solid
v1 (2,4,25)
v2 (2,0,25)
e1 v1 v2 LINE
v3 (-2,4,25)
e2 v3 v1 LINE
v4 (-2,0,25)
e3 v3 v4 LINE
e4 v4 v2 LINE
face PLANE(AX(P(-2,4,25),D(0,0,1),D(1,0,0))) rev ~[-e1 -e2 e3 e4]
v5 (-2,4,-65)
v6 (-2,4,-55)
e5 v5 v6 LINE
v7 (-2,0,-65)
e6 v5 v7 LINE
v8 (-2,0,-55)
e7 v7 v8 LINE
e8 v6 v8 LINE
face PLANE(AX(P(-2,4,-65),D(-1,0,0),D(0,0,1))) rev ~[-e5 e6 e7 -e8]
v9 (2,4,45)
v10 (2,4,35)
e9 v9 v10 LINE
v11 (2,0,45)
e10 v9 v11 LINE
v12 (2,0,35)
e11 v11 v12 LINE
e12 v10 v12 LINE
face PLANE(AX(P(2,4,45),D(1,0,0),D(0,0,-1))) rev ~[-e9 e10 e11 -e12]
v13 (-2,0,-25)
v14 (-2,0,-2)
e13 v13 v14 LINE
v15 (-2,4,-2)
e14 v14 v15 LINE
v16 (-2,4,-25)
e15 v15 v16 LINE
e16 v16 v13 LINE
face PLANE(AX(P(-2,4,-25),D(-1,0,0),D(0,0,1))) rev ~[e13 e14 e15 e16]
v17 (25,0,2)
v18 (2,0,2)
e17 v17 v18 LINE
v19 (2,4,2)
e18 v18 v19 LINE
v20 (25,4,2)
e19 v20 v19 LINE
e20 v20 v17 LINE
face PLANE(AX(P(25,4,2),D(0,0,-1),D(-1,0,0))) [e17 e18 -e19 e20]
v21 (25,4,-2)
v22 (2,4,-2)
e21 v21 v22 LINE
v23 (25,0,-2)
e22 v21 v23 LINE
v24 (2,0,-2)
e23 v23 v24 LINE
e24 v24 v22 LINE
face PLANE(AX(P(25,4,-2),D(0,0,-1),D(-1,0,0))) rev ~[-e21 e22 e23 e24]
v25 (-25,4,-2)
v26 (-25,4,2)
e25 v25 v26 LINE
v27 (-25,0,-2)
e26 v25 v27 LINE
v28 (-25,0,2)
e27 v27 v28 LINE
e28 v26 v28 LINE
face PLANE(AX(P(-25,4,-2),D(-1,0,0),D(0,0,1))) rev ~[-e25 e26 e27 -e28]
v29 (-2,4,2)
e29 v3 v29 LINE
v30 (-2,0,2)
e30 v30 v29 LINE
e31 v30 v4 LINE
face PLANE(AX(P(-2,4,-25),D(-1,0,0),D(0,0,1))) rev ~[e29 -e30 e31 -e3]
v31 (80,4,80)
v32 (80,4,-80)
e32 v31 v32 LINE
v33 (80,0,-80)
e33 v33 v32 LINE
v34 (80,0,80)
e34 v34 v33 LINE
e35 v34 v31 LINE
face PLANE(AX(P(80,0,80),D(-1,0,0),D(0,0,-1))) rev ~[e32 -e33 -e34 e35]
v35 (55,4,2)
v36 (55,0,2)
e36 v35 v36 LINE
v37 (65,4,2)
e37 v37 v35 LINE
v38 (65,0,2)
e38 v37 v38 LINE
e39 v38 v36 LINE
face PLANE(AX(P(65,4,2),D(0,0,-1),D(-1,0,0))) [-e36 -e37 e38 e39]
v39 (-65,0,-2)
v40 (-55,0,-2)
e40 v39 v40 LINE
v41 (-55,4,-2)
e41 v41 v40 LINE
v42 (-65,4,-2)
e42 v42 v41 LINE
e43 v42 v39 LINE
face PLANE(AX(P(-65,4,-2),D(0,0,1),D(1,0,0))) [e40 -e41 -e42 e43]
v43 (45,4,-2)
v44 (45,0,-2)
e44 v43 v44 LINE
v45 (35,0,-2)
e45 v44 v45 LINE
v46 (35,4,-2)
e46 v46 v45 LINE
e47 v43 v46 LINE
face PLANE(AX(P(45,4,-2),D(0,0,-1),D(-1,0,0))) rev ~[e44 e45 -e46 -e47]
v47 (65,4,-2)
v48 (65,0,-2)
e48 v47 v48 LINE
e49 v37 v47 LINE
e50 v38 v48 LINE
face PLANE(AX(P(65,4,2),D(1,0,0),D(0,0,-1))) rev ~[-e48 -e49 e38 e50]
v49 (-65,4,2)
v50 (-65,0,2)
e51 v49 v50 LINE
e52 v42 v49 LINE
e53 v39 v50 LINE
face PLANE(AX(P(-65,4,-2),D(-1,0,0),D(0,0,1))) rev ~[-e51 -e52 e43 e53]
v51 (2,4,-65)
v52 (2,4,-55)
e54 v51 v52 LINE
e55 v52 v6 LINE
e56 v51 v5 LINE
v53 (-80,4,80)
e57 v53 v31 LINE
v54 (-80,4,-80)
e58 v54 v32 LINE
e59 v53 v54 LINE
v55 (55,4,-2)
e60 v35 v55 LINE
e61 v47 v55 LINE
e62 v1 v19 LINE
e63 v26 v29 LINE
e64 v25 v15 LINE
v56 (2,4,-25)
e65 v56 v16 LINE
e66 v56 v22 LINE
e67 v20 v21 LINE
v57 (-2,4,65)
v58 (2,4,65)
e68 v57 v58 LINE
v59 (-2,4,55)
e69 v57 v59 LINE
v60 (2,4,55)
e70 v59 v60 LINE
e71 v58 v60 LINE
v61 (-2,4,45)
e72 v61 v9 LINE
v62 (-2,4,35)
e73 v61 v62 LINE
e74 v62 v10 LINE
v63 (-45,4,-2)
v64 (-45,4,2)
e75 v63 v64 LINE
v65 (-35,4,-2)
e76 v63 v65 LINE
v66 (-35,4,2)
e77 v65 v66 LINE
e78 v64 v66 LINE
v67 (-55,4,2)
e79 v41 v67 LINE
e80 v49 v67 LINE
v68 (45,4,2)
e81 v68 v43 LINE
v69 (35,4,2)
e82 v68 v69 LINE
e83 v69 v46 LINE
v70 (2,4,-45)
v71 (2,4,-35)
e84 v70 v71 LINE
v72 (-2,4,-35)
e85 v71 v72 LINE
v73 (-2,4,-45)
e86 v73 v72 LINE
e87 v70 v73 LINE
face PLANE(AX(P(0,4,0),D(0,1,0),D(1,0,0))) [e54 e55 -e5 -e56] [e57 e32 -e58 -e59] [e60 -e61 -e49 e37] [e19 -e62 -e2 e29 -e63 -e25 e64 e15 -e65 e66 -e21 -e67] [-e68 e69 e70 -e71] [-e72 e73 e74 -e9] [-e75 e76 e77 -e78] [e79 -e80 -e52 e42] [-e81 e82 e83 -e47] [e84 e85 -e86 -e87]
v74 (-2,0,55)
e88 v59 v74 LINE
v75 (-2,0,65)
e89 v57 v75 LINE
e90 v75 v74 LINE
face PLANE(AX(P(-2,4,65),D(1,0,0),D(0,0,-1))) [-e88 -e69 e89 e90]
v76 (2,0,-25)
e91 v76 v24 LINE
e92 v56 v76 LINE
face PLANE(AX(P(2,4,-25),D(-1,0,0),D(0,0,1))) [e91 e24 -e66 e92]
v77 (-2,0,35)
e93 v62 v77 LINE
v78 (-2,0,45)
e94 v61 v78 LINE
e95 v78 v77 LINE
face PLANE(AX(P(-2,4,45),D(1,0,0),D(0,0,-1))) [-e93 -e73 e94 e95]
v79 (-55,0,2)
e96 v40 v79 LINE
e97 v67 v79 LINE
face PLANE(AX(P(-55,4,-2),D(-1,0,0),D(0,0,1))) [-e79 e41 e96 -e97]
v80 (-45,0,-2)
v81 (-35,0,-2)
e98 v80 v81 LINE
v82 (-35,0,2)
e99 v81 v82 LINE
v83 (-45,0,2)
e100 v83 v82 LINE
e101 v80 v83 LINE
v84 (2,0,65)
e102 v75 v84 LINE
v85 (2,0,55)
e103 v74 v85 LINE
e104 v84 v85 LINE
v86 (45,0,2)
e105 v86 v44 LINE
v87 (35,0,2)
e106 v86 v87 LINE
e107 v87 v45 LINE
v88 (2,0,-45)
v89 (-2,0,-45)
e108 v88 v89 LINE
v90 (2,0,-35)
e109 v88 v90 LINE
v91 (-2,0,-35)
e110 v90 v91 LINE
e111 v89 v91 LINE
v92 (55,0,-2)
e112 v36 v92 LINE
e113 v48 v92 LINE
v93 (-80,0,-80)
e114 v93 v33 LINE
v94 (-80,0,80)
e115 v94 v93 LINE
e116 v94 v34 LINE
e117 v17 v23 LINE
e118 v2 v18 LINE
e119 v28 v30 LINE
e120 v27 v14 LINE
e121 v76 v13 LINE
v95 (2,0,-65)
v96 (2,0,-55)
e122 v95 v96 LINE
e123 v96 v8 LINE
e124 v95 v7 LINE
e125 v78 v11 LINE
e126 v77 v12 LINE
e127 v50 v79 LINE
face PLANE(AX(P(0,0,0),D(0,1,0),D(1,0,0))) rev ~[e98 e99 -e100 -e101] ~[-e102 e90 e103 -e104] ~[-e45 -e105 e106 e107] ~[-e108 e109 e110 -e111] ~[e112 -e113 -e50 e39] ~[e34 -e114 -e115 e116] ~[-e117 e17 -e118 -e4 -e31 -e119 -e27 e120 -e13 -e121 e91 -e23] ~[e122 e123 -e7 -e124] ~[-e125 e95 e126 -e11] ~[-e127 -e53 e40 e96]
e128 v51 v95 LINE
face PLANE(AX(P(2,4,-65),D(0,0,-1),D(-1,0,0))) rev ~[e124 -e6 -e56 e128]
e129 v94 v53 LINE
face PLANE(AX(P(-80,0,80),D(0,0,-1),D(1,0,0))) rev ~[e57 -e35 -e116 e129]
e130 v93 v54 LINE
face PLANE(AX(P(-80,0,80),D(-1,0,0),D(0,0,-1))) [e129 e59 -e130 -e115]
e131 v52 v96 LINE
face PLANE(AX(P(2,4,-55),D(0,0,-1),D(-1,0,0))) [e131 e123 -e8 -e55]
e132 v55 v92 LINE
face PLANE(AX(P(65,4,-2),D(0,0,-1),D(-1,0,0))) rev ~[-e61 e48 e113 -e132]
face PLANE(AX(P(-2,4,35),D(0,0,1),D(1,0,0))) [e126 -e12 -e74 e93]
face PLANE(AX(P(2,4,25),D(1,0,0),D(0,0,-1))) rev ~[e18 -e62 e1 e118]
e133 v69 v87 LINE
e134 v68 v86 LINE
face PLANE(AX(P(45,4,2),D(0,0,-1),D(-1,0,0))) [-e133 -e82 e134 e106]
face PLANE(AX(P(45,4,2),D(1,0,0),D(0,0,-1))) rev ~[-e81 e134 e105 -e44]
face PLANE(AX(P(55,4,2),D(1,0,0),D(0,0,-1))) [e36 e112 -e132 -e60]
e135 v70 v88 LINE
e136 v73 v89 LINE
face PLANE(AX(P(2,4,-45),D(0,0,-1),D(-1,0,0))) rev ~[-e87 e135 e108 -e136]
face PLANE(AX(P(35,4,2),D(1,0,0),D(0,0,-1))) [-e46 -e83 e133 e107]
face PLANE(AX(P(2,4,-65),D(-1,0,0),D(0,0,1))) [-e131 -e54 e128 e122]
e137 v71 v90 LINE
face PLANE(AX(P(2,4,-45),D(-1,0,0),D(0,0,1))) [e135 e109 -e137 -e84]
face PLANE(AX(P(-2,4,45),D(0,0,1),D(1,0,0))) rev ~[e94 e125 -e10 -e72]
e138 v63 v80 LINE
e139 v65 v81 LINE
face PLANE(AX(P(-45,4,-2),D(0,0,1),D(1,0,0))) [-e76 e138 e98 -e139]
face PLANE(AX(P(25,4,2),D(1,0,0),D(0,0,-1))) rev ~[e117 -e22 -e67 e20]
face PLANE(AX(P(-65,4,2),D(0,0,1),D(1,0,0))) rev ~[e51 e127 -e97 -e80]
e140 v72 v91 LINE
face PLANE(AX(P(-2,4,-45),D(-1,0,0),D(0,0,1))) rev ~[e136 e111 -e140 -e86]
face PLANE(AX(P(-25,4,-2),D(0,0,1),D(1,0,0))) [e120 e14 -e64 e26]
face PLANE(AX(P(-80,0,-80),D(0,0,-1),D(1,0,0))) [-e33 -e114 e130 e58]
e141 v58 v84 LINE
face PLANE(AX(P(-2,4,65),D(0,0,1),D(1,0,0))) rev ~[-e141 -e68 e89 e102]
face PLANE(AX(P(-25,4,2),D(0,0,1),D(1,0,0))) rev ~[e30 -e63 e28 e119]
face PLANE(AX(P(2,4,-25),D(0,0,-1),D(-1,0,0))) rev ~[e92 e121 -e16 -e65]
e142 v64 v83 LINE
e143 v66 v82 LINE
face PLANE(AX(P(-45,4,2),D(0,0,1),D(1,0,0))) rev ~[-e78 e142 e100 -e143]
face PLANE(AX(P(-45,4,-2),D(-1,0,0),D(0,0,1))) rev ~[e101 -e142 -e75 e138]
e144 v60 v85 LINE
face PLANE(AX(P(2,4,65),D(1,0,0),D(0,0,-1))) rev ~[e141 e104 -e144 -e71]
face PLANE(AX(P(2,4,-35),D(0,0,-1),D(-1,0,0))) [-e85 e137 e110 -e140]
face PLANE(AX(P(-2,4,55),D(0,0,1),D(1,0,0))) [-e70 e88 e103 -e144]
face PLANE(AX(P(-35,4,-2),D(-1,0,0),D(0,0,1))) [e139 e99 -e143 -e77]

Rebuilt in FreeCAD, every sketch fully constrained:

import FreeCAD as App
import Part
import Sketcher
Q = App.Units.Quantity

doc = App.newDocument("Part")
body = doc.addObject("PartDesign::Body", "Body")

sketch1 = doc.addObject("Sketcher::SketchObject", "Sketch")
body.addObject(sketch1)
sketch1.AttachmentSupport = (doc.XZ_Plane, [""])
sketch1.MapMode = "FlatFace"
sketch1.addGeometry([
    Part.LineSegment(App.Vector(-80, -80, 0), App.Vector(-80, 80, 0)),
    Part.LineSegment(App.Vector(-80, 80, 0), App.Vector(80, 80, 0)),
    Part.LineSegment(App.Vector(80, 80, 0), App.Vector(80, -80, 0)),
    Part.LineSegment(App.Vector(80, -80, 0), App.Vector(-80, -80, 0)),
], False)
sketch1.addConstraint([
    Sketcher.Constraint("Coincident", 0, 2, 1, 1),
    Sketcher.Constraint("Coincident", 1, 2, 2, 1),
    Sketcher.Constraint("Coincident", 2, 2, 3, 1),
    Sketcher.Constraint("Coincident", 3, 2, 0, 1),
    Sketcher.Constraint("Vertical", 0),
    Sketcher.Constraint("Horizontal", 1),
    Sketcher.Constraint("Vertical", 2),
    Sketcher.Constraint("Horizontal", 3),
    Sketcher.Constraint("Symmetric", 0, 2, 2, 2, -1, 1),
    Sketcher.Constraint("Equal", 3, 0),
    Sketcher.Constraint("DistanceX", 1, 1, 1, 2, Q("160 mm")),
])
pad1 = doc.addObject("PartDesign::Pad", "Pad")
body.addObject(pad1)
pad1.Profile = sketch1
pad1.Length = 4
pad1.Reversed = True

sketch2 = doc.addObject("Sketcher::SketchObject", "Sketch001")
body.addObject(sketch2)
sketch2.AttachmentSupport = (doc.XZ_Plane, [""])
sketch2.MapMode = "FlatFace"
sketch2.AttachmentOffset = App.Placement(App.Vector(0, 0, -4), App.Rotation())
sketch2.addGeometry([
    Part.LineSegment(App.Vector(-2, 0, 0), App.Vector(-2, 25, 0)),
    Part.LineSegment(App.Vector(-2, 25, 0), App.Vector(2, 25, 0)),
    Part.LineSegment(App.Vector(2, 25, 0), App.Vector(2, 0, 0)),
    Part.LineSegment(App.Vector(2, 0, 0), App.Vector(-2, 0, 0)),
    Part.LineSegment(App.Vector(-2, 35, 0), App.Vector(-2, 45, 0)),
    Part.LineSegment(App.Vector(-2, 45, 0), App.Vector(2, 45, 0)),
    Part.LineSegment(App.Vector(2, 45, 0), App.Vector(2, 35, 0)),
    Part.LineSegment(App.Vector(2, 35, 0), App.Vector(-2, 35, 0)),
    Part.LineSegment(App.Vector(-2, 55, 0), App.Vector(-2, 65, 0)),
    Part.LineSegment(App.Vector(-2, 65, 0), App.Vector(2, 65, 0)),
    Part.LineSegment(App.Vector(2, 65, 0), App.Vector(2, 55, 0)),
    Part.LineSegment(App.Vector(2, 55, 0), App.Vector(-2, 55, 0)),
], False)
sketch2.addConstraint([
    Sketcher.Constraint("Coincident", 0, 2, 1, 1),
    Sketcher.Constraint("Coincident", 1, 2, 2, 1),
    Sketcher.Constraint("Coincident", 2, 2, 3, 1),
    Sketcher.Constraint("Coincident", 3, 2, 0, 1),
    Sketcher.Constraint("Coincident", 4, 2, 5, 1),
    Sketcher.Constraint("Coincident", 5, 2, 6, 1),
    Sketcher.Constraint("Coincident", 6, 2, 7, 1),
    Sketcher.Constraint("Coincident", 7, 2, 4, 1),
    Sketcher.Constraint("Coincident", 8, 2, 9, 1),
    Sketcher.Constraint("Coincident", 9, 2, 10, 1),
    Sketcher.Constraint("Coincident", 10, 2, 11, 1),
    Sketcher.Constraint("Coincident", 11, 2, 8, 1),
    Sketcher.Constraint("Vertical", 0),
    Sketcher.Constraint("Horizontal", 1),
    Sketcher.Constraint("Vertical", 2),
    Sketcher.Constraint("Horizontal", 3),
    Sketcher.Constraint("Vertical", 4),
    Sketcher.Constraint("Horizontal", 5),
    Sketcher.Constraint("Vertical", 6),
    Sketcher.Constraint("Horizontal", 7),
    Sketcher.Constraint("Vertical", 8),
    Sketcher.Constraint("Horizontal", 9),
    Sketcher.Constraint("Vertical", 10),
    Sketcher.Constraint("Horizontal", 11),
    Sketcher.Constraint("Symmetric", 2, 2, 3, 2, -1, 1),
    Sketcher.Constraint("Vertical", 3, 2, 4, 2),
    Sketcher.Constraint("Vertical", 2, 2, 5, 2),
    Sketcher.Constraint("Vertical", 7, 2, 8, 2),
    Sketcher.Constraint("Vertical", 6, 2, 9, 2),
    Sketcher.Constraint("Equal", 6, 8),
    Sketcher.Constraint("DistanceX", 1, 1, 1, 2, Q("4 mm")),
    Sketcher.Constraint("DistanceY", 0, 1, 0, 2, Q("25 mm")),
    Sketcher.Constraint("DistanceY", 4, 1, 4, 2, Q("10 mm")),
    Sketcher.Constraint("DistanceY", -1, 1, 4, 2, Q("45 mm")),
    Sketcher.Constraint("DistanceY", -1, 1, 8, 2, Q("65 mm")),
])
pocket1 = doc.addObject("PartDesign::Pocket", "Pocket")
body.addObject(pocket1)
pocket1.Profile = sketch2
pocket1.Type = "ThroughAll"
pocket1.Reversed = True
doc.recompute()

polarpattern = doc.addObject("PartDesign::PolarPattern", "PolarPattern")
body.addObject(polarpattern)
polarpattern.Originals = [pocket1]
polarpattern.Axis = (doc.Y_Axis, [""])
polarpattern.Angle = 360
polarpattern.Occurrences = 4
body.Tip = polarpattern

doc.recompute()
